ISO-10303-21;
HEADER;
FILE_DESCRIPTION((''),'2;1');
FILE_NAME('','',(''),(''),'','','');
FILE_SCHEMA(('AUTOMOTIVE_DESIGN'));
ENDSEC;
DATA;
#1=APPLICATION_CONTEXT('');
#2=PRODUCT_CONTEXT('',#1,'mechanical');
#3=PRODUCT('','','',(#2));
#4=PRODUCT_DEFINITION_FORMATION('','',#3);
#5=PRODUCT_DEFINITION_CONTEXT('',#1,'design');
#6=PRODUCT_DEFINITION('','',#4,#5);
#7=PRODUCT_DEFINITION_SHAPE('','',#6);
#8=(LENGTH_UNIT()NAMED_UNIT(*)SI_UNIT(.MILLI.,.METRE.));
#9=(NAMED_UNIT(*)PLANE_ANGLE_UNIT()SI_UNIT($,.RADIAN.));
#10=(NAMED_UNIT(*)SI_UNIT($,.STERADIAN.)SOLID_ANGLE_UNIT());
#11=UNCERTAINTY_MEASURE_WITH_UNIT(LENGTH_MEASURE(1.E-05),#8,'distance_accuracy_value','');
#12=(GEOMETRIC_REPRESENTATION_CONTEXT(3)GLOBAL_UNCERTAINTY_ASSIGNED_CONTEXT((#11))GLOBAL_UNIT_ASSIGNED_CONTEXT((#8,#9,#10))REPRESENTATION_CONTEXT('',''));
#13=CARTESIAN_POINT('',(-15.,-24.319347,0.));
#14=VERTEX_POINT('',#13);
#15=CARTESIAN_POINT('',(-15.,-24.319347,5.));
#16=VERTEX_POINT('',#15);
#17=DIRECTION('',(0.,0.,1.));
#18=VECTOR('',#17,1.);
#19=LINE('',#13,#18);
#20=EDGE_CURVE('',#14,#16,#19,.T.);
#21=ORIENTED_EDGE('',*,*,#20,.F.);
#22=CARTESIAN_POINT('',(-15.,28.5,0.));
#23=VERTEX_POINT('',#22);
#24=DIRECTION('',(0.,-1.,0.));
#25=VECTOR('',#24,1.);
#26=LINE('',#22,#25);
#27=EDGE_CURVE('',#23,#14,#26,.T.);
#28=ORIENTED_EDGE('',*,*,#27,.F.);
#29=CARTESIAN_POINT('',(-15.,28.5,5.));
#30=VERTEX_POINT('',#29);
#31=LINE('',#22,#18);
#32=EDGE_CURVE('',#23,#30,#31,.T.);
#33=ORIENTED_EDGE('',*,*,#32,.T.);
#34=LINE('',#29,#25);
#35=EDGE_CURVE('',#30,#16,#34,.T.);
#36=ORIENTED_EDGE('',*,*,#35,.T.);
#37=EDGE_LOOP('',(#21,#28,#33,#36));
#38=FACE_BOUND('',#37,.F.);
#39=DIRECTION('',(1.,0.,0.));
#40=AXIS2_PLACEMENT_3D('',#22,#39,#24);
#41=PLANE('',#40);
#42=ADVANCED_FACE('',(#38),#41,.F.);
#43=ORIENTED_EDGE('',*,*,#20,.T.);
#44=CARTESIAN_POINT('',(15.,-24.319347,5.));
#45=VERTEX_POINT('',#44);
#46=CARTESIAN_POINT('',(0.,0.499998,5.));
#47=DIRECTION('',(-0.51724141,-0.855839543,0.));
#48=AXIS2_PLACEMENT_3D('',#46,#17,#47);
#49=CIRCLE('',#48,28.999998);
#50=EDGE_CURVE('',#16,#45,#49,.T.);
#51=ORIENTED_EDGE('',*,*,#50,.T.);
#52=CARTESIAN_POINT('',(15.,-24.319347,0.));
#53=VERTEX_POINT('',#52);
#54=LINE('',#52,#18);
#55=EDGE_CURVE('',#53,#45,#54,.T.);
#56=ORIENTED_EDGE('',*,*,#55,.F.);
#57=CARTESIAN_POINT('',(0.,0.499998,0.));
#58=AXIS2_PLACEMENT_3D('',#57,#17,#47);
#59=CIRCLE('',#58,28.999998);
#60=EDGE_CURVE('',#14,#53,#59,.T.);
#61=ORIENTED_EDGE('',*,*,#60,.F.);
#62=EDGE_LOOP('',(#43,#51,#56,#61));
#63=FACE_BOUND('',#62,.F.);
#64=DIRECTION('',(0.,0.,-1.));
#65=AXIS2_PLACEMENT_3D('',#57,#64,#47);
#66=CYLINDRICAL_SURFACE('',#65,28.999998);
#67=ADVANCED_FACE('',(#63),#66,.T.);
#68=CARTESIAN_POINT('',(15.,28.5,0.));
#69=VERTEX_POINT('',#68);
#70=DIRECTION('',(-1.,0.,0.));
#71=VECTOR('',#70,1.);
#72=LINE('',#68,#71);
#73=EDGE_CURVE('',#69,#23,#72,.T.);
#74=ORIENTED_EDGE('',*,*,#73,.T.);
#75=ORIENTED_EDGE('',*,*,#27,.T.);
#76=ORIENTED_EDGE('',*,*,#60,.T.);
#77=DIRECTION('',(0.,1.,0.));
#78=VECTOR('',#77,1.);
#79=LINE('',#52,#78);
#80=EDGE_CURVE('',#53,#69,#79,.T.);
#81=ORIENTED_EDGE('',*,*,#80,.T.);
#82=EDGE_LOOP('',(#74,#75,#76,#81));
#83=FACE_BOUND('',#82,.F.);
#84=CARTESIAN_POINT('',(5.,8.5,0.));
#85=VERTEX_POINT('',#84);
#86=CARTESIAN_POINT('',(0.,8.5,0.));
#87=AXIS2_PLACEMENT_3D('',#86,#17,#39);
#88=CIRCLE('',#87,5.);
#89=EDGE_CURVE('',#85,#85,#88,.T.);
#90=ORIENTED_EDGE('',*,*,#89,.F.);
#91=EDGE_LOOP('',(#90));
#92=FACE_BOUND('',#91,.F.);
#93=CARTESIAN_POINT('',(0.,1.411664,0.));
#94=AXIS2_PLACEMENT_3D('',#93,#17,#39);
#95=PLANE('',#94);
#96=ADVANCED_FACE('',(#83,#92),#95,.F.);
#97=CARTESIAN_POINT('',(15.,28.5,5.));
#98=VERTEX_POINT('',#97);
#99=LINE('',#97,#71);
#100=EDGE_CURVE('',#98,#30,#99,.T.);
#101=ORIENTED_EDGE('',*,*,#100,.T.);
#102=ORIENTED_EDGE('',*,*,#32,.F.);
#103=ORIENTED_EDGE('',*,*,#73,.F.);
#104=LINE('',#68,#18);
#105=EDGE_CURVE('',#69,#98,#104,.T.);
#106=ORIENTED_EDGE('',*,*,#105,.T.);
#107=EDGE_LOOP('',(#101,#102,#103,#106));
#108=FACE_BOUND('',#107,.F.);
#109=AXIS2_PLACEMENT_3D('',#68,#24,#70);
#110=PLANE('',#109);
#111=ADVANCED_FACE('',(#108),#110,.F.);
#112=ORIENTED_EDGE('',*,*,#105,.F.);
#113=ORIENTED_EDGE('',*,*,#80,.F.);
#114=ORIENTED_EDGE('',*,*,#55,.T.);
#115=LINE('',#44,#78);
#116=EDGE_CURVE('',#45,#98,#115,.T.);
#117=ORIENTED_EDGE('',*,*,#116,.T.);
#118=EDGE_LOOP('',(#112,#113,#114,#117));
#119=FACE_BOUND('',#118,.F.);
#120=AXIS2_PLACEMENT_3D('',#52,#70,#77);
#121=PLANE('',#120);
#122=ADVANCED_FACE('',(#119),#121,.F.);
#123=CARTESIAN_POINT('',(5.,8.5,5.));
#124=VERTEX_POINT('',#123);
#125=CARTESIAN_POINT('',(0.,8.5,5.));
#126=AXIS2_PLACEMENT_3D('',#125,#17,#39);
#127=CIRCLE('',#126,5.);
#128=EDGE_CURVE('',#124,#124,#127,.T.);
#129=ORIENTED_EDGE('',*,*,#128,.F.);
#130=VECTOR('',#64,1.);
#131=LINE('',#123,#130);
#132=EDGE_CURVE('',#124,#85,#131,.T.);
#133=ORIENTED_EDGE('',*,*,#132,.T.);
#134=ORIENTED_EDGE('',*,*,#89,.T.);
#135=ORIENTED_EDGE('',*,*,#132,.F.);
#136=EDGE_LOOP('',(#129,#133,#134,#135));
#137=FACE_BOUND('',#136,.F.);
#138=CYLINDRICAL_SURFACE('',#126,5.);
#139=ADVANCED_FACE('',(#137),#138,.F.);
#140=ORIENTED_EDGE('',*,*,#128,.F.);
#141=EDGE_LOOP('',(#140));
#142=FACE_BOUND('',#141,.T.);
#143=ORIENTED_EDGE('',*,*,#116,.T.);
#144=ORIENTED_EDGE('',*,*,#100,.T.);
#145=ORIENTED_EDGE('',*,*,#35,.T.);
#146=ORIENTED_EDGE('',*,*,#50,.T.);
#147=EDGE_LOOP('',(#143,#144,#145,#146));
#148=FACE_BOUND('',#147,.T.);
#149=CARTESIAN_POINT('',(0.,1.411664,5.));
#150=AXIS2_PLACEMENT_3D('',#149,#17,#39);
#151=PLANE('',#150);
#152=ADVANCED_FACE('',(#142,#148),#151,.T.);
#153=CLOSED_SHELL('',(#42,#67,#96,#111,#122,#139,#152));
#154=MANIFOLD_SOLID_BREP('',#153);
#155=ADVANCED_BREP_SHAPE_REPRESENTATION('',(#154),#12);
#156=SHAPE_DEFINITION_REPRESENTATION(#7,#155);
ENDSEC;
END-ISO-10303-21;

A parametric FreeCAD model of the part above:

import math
import FreeCAD as App
import Part
import Sketcher
from FreeCAD import Vector
Q = App.Units.Quantity

doc = App.newDocument("Part")
body = doc.addObject("PartDesign::Body", "Body")

sketch1 = body.newObject("Sketcher::SketchObject", "Sketch")
sketch1.AttachmentSupport = (doc.getObject("XY_Plane"), [""])
sketch1.MapMode = "FlatFace"
sketch1.addGeometry(Part.LineSegment(Vector(15, -24.319347, 0), Vector(15, 28.5, 0)), False)
sketch1.addGeometry(Part.LineSegment(Vector(15, 28.5, 0), Vector(-15, 28.5, 0)), False)
sketch1.addGeometry(Part.LineSegment(Vector(-15, 28.5, 0), Vector(-15, -24.319347, 0)), False)
sketch1.addGeometry(Part.ArcOfCircle(Part.Circle(Vector(0, 0.499998, 0), Vector(0, 0, 1), 28.999998), math.radians(-121.147392), math.radians(-58.852608)), False)
sketch1.addConstraint(Sketcher.Constraint("Coincident", 0, 2, 1, 1))
sketch1.addConstraint(Sketcher.Constraint("Coincident", 1, 2, 2, 1))
sketch1.addConstraint(Sketcher.Constraint("Coincident", 2, 2, 3, 1))
sketch1.addConstraint(Sketcher.Constraint("Coincident", 3, 2, 0, 1))
sketch1.addConstraint(Sketcher.Constraint("Vertical", 0))
sketch1.addConstraint(Sketcher.Constraint("Horizontal", 1))
sketch1.addConstraint(Sketcher.Constraint("Vertical", 2))
sketch1.addConstraint(Sketcher.Constraint("Symmetric", 2, 2, 3, 2, -2))
sketch1.addConstraint(Sketcher.Constraint("Radius", 3, Q("28.999998 mm")))
sketch1.addConstraint(Sketcher.Constraint("DistanceX", 1, 2, 1, 1, Q("30 mm")))
sketch1.addConstraint(Sketcher.Constraint("DistanceY", 3, 3, 0, 2, Q("28.000002 mm")))
sketch1.addConstraint(Sketcher.Constraint("DistanceY", -1, 1, 3, 3, Q("0.499998 mm")))
pad1 = body.newObject("PartDesign::Pad", "Pad")
pad1.Profile = sketch1
pad1.Length = 5

sketch2 = body.newObject("Sketcher::SketchObject", "Sketch001")
sketch2.AttachmentSupport = (doc.getObject("XY_Plane"), [""])
sketch2.MapMode = "FlatFace"
sketch2.AttachmentOffset = App.Placement(Vector(0, 0, 5), App.Rotation())
sketch2.addGeometry(Part.Circle(Vector(0, 8.5, 0), Vector(0, 0, 1), 5), False)
sketch2.addConstraint(Sketcher.Constraint("PointOnObject", 0, 3, -2))
sketch2.addConstraint(Sketcher.Constraint("Diameter", 0, Q("10 mm")))
sketch2.addConstraint(Sketcher.Constraint("DistanceY", -1, 1, 0, 3, Q("8.5 mm")))
pocket1 = body.newObject("PartDesign::Pocket", "Pocket")
pocket1.Profile = sketch2
pocket1.Length = 5

doc.recompute()
